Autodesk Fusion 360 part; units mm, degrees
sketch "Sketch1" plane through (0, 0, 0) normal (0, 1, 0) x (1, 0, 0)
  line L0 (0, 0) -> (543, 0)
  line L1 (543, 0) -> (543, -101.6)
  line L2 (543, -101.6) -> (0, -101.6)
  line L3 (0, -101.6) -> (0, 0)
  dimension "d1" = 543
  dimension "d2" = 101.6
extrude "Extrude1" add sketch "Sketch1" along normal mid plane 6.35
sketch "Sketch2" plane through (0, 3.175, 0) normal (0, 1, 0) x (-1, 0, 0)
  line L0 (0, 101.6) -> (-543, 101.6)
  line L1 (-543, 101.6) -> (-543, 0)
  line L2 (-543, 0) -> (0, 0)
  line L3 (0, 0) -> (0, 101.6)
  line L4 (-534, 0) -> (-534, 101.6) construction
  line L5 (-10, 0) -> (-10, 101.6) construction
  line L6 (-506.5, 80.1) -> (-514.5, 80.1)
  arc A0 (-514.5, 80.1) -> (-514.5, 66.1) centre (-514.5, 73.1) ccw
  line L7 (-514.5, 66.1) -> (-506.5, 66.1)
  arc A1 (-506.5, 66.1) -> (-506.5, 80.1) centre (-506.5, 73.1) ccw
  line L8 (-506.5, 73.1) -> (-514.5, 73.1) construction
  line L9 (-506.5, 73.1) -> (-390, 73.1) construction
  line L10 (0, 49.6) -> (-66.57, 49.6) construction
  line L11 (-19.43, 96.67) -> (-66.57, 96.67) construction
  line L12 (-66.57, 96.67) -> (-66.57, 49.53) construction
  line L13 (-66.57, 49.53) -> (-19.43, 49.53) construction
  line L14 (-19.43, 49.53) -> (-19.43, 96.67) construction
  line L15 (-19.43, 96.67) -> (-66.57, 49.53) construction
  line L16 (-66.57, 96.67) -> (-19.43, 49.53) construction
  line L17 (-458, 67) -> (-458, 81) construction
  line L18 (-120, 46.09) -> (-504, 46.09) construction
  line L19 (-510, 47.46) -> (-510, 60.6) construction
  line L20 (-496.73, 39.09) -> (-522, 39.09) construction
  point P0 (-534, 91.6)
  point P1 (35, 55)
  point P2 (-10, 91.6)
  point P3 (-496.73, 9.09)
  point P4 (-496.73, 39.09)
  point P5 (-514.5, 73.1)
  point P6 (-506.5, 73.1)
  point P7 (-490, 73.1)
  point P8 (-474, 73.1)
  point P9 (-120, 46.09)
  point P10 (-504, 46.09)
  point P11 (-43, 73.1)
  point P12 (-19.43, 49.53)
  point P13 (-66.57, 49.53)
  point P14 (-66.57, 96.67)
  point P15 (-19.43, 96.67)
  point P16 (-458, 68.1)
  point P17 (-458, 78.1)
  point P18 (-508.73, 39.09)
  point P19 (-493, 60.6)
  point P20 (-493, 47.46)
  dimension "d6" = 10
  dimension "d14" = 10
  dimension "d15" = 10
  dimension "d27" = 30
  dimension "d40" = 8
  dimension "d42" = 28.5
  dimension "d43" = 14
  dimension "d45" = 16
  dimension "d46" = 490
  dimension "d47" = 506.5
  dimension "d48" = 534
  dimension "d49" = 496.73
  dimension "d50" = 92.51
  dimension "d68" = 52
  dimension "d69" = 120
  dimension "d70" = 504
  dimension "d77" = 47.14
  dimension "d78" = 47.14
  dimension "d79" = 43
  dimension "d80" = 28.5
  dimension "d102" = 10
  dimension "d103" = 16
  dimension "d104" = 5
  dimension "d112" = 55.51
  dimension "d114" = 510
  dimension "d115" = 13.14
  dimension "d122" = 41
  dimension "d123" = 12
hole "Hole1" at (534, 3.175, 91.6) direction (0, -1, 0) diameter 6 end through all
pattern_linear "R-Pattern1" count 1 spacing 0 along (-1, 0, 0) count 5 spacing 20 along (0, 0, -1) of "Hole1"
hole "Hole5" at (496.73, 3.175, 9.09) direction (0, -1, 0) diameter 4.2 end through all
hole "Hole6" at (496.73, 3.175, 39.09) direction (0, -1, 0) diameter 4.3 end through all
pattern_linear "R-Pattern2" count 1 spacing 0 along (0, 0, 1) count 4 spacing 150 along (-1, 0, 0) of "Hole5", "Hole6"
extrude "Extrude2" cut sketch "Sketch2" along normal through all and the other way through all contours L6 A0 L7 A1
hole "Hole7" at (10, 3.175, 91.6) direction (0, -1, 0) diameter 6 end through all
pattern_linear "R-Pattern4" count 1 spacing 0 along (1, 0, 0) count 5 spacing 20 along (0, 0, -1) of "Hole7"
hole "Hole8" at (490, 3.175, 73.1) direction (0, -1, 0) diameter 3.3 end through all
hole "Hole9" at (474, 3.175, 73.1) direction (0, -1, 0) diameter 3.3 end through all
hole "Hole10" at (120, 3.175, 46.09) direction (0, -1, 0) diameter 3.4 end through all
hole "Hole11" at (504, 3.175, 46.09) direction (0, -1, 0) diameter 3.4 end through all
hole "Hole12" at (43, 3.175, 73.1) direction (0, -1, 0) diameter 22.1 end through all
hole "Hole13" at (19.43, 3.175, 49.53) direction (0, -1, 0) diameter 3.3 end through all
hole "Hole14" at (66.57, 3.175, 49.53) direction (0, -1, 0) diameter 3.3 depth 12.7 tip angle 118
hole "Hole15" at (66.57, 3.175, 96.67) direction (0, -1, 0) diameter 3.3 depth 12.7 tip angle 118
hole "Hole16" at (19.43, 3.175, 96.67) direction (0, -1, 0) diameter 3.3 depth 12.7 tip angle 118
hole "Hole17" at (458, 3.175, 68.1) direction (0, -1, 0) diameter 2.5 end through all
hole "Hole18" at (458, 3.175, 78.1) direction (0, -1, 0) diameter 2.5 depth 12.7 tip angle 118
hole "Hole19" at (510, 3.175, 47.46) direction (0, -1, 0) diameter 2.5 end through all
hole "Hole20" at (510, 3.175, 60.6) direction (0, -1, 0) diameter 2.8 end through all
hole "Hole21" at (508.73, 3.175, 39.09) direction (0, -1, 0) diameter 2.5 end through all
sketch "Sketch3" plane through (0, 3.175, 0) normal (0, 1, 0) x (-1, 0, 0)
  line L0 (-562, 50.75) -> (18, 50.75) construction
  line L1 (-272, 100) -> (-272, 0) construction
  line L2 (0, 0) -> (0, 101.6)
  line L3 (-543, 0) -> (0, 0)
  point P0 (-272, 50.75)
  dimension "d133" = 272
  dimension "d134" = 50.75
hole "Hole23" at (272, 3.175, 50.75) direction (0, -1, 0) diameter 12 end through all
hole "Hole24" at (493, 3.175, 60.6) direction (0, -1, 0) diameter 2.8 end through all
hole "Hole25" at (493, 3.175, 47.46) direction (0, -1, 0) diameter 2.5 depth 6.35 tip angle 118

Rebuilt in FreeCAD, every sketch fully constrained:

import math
import FreeCAD as App
import Part
import Sketcher

V = App.Vector

doc = App.newDocument("Part")
body = doc.addObject("PartDesign::Body", "Body")

sketch1 = body.newObject("Sketcher::SketchObject", "Sketch")
sketch1.AttachmentSupport = (doc.getObject("XZ_Plane"), [""])
sketch1.MapMode = "FlatFace"
sketch1.addGeometry(Part.LineSegment(V(543, 0, 0), V(0, 0, 0)), False)
sketch1.addGeometry(Part.LineSegment(V(0, 0, 0), V(0, 102, 0)), False)
sketch1.addGeometry(Part.LineSegment(V(0, 102, 0), V(543, 102, 0)), False)
sketch1.addGeometry(Part.LineSegment(V(543, 102, 0), V(543, 0, 0)), False)
sketch1.addConstraint(Sketcher.Constraint("Coincident", 0, 2, 1, 1))
sketch1.addConstraint(Sketcher.Constraint("Coincident", 1, 2, 2, 1))
sketch1.addConstraint(Sketcher.Constraint("Coincident", 2, 2, 3, 1))
sketch1.addConstraint(Sketcher.Constraint("Coincident", 3, 2, 0, 1))
sketch1.addConstraint(Sketcher.Constraint("Horizontal", 0))
sketch1.addConstraint(Sketcher.Constraint("Vertical", 1))
sketch1.addConstraint(Sketcher.Constraint("Horizontal", 2))
sketch1.addConstraint(Sketcher.Constraint("Vertical", 3))
sketch1.addConstraint(Sketcher.Constraint("Coincident", 0, 2, -1, 1))
sketch1.addConstraint(Sketcher.Constraint("DistanceX", 0, 2, 0, 1, 543.0))
sketch1.addConstraint(Sketcher.Constraint("DistanceY", 1, 1, 1, 2, 101.6))
pad1 = body.newObject("PartDesign::Pad", "Pad")
pad1.Profile = sketch1
pad1.Length = 6.35
pad1.Midplane = True

sketch2 = body.newObject("Sketcher::SketchObject", "Sketch001")
sketch2.AttachmentSupport = (doc.getObject("XZ_Plane"), [""])
sketch2.MapMode = "FlatFace"
sketch2.AttachmentOffset = App.Placement(V(0, 0, -3.175), App.Rotation())
sketch2.addGeometry(Part.Circle(V(534, 91.6, 0), V(0, 0, 1), 3), False)
sketch2.addConstraint(Sketcher.Constraint("Diameter", 0, 6.0))
sketch2.addConstraint(Sketcher.Constraint("DistanceX", -1, 1, 0, 3, 534.0))
sketch2.addConstraint(Sketcher.Constraint("DistanceY", -1, 1, 0, 3, 91.6))
doc.recompute()
hole = body.newObject("PartDesign::Hole", "Hole")
hole.Profile = sketch2
hole.ThreadType = "None"
hole.Diameter = 6
hole.DepthType = "ThroughAll"
hole.Reversed = True
doc.recompute()

linearpattern = body.newObject("PartDesign::LinearPattern", "LinearPattern")
linearpattern.Originals = [hole]
linearpattern.Direction = (doc.getObject("Z_Axis"), [""])
linearpattern.Mode = "offset"
linearpattern.Offset = 20
linearpattern.Occurrences = 5
linearpattern.Reversed = True
body.Tip = linearpattern

sketch3 = body.newObject("Sketcher::SketchObject", "Sketch002")
sketch3.AttachmentSupport = (doc.getObject("XZ_Plane"), [""])
sketch3.MapMode = "FlatFace"
sketch3.AttachmentOffset = App.Placement(V(0, 0, -3.175), App.Rotation())
sketch3.addGeometry(Part.Circle(V(496.7, 9.1, 0), V(0, 0, 1), 2.1), False)
sketch3.addConstraint(Sketcher.Constraint("Diameter", 0, 4.2))
sketch3.addConstraint(Sketcher.Constraint("DistanceX", -1, 1, 0, 3, 496.73))
sketch3.addConstraint(Sketcher.Constraint("DistanceY", -1, 1, 0, 3, 9.09))
doc.recompute()
hole2 = body.newObject("PartDesign::Hole", "Hole001")
hole2.Profile = sketch3
hole2.ThreadType = "None"
hole2.Diameter = 4.2
hole2.DepthType = "ThroughAll"
hole2.Reversed = True

sketch4 = body.newObject("Sketcher::SketchObject", "Sketch003")
sketch4.AttachmentSupport = (doc.getObject("XZ_Plane"), [""])
sketch4.MapMode = "FlatFace"
sketch4.AttachmentOffset = App.Placement(V(0, 0, -3.175), App.Rotation())
sketch4.addGeometry(Part.Circle(V(496.7, 39.1, 0), V(0, 0, 1), 2.1), False)
sketch4.addConstraint(Sketcher.Constraint("Diameter", 0, 4.3))
sketch4.addConstraint(Sketcher.Constraint("DistanceX", -1, 1, 0, 3, 496.73))
sketch4.addConstraint(Sketcher.Constraint("DistanceY", -1, 1, 0, 3, 39.09))
doc.recompute()
hole3 = body.newObject("PartDesign::Hole", "Hole002")
hole3.Profile = sketch4
hole3.ThreadType = "None"
hole3.Diameter = 4.3
hole3.DepthType = "ThroughAll"
hole3.Reversed = True
doc.recompute()

linearpattern2 = body.newObject("PartDesign::LinearPattern", "LinearPattern001")
linearpattern2.Originals = [hole2, hole3]
linearpattern2.Direction = (doc.getObject("X_Axis"), [""])
linearpattern2.Mode = "offset"
linearpattern2.Offset = 150
linearpattern2.Occurrences = 4
linearpattern2.Reversed = True
body.Tip = linearpattern2

sketch5 = body.newObject("Sketcher::SketchObject", "Sketch004")
sketch5.AttachmentSupport = (doc.getObject("XZ_Plane"), [""])
sketch5.MapMode = "FlatFace"
sketch5.AttachmentOffset = App.Placement(V(0, 0, -3.175), App.Rotation())
sketch5.addGeometry(Part.ArcOfCircle(Part.Circle(V(506, 73, 0), V(0, 0, 1), 7), math.radians(90), math.radians(270)), False)
sketch5.addGeometry(Part.LineSegment(V(506, 80, 0), V(514, 80, 0)), False)
sketch5.addGeometry(Part.ArcOfCircle(Part.Circle(V(514, 73, 0), V(0, 0, 1), 7), math.radians(-90), math.radians(90)), False)
sketch5.addGeometry(Part.LineSegment(V(514, 66, 0), V(506, 66, 0)), False)
sketch5.addConstraint(Sketcher.Constraint("Tangent", 0, 1, 1, 1))
sketch5.addConstraint(Sketcher.Constraint("Tangent", 1, 2, 2, 2))
sketch5.addConstraint(Sketcher.Constraint("Tangent", 2, 1, 3, 1))
sketch5.addConstraint(Sketcher.Constraint("Tangent", 3, 2, 0, 2))
sketch5.addConstraint(Sketcher.Constraint("Horizontal", 1))
sketch5.addConstraint(Sketcher.Constraint("Horizontal", 3))
sketch5.addConstraint(Sketcher.Constraint("Radius", 0, 7.0))
sketch5.addConstraint(Sketcher.Constraint("DistanceX", 1, 1, 1, 2, 8.0))
sketch5.addConstraint(Sketcher.Constraint("DistanceX", -1, 1, 0, 3, 506.5))
sketch5.addConstraint(Sketcher.Constraint("DistanceY", -1, 1, 0, 3, 73.1))
pocket1 = body.newObject("PartDesign::Pocket", "Pocket")
pocket1.Profile = sketch5
pocket1.Type = "ThroughAll"
pocket1.Midplane = True

sketch6 = body.newObject("Sketcher::SketchObject", "Sketch005")
sketch6.AttachmentSupport = (doc.getObject("XZ_Plane"), [""])
sketch6.MapMode = "FlatFace"
sketch6.AttachmentOffset = App.Placement(V(0, 0, -3.175), App.Rotation())
sketch6.addGeometry(Part.Circle(V(10, 91.6, 0), V(0, 0, 1), 3), False)
sketch6.addConstraint(Sketcher.Constraint("Diameter", 0, 6.0))
sketch6.addConstraint(Sketcher.Constraint("DistanceX", -1, 1, 0, 3, 10.0))
sketch6.addConstraint(Sketcher.Constraint("DistanceY", -1, 1, 0, 3, 91.6))
doc.recompute()
hole4 = body.newObject("PartDesign::Hole", "Hole003")
hole4.Profile = sketch6
hole4.ThreadType = "None"
hole4.Diameter = 6
hole4.DepthType = "ThroughAll"
hole4.Reversed = True
doc.recompute()

linearpattern3 = body.newObject("PartDesign::LinearPattern", "LinearPattern002")
linearpattern3.Originals = [hole4]
linearpattern3.Direction = (doc.getObject("Z_Axis"), [""])
linearpattern3.Mode = "offset"
linearpattern3.Offset = 20
linearpattern3.Occurrences = 5
linearpattern3.Reversed = True
body.Tip = linearpattern3

sketch7 = body.newObject("Sketcher::SketchObject", "Sketch006")
sketch7.AttachmentSupport = (doc.getObject("XZ_Plane"), [""])
sketch7.MapMode = "FlatFace"
sketch7.AttachmentOffset = App.Placement(V(0, 0, -3.175), App.Rotation())
sketch7.addGeometry(Part.Circle(V(490, 73.1, 0), V(0, 0, 1), 1.6), False)
sketch7.addConstraint(Sketcher.Constraint("Diameter", 0, 3.3))
sketch7.addConstraint(Sketcher.Constraint("DistanceX", -1, 1, 0, 3, 490.0))
sketch7.addConstraint(Sketcher.Constraint("DistanceY", -1, 1, 0, 3, 73.1))
doc.recompute()
hole5 = body.newObject("PartDesign::Hole", "Hole004")
hole5.Profile = sketch7
hole5.ThreadType = "None"
hole5.Diameter = 3.3
hole5.DepthType = "ThroughAll"
hole5.Reversed = True

sketch8 = body.newObject("Sketcher::SketchObject", "Sketch007")
sketch8.AttachmentSupport = (doc.getObject("XZ_Plane"), [""])
sketch8.MapMode = "FlatFace"
sketch8.AttachmentOffset = App.Placement(V(0, 0, -3.175), App.Rotation())
sketch8.addGeometry(Part.Circle(V(474, 73.1, 0), V(0, 0, 1), 1.6), False)
sketch8.addConstraint(Sketcher.Constraint("Diameter", 0, 3.3))
sketch8.addConstraint(Sketcher.Constraint("DistanceX", -1, 1, 0, 3, 474.0))
sketch8.addConstraint(Sketcher.Constraint("DistanceY", -1, 1, 0, 3, 73.1))
doc.recompute()
hole6 = body.newObject("PartDesign::Hole", "Hole005")
hole6.Profile = sketch8
hole6.ThreadType = "None"
hole6.Diameter = 3.3
hole6.DepthType = "ThroughAll"
hole6.Reversed = True

sketch9 = body.newObject("Sketcher::SketchObject", "Sketch008")
sketch9.AttachmentSupport = (doc.getObject("XZ_Plane"), [""])
sketch9.MapMode = "FlatFace"
sketch9.AttachmentOffset = App.Placement(V(0, 0, -3.175), App.Rotation())
sketch9.addGeometry(Part.Circle(V(120, 46.1, 0), V(0, 0, 1), 1.7), False)
sketch9.addConstraint(Sketcher.Constraint("Diameter", 0, 3.4))
sketch9.addConstraint(Sketcher.Constraint("DistanceX", -1, 1, 0, 3, 120.0))
sketch9.addConstraint(Sketcher.Constraint("DistanceY", -1, 1, 0, 3, 46.09))
doc.recompute()
hole7 = body.newObject("PartDesign::Hole", "Hole006")
hole7.Profile = sketch9
hole7.ThreadType = "None"
hole7.Diameter = 3.4
hole7.DepthType = "ThroughAll"
hole7.Reversed = True

sketch10 = body.newObject("Sketcher::SketchObject", "Sketch009")
sketch10.AttachmentSupport = (doc.getObject("XZ_Plane"), [""])
sketch10.MapMode = "FlatFace"
sketch10.AttachmentOffset = App.Placement(V(0, 0, -3.175), App.Rotation())
sketch10.addGeometry(Part.Circle(V(504, 46.1, 0), V(0, 0, 1), 1.7), False)
sketch10.addConstraint(Sketcher.Constraint("Diameter", 0, 3.4))
sketch10.addConstraint(Sketcher.Constraint("DistanceX", -1, 1, 0, 3, 504.0))
sketch10.addConstraint(Sketcher.Constraint("DistanceY", -1, 1, 0, 3, 46.09))
doc.recompute()
hole8 = body.newObject("PartDesign::Hole", "Hole007")
hole8.Profile = sketch10
hole8.ThreadType = "None"
hole8.Diameter = 3.4
hole8.DepthType = "ThroughAll"
hole8.Reversed = True

sketch11 = body.newObject("Sketcher::SketchObject", "Sketch010")
sketch11.AttachmentSupport = (doc.getObject("XZ_Plane"), [""])
sketch11.MapMode = "FlatFace"
sketch11.AttachmentOffset = App.Placement(V(0, 0, -3.175), App.Rotation())
sketch11.addGeometry(Part.Circle(V(43, 73, 0), V(0, 0, 1), 11), False)
sketch11.addConstraint(Sketcher.Constraint("Diameter", 0, 22.1))
sketch11.addConstraint(Sketcher.Constraint("DistanceX", -1, 1, 0, 3, 43.0))
sketch11.addConstraint(Sketcher.Constraint("DistanceY", -1, 1, 0, 3, 73.1))
doc.recompute()
hole9 = body.newObject("PartDesign::Hole", "Hole008")
hole9.Profile = sketch11
hole9.ThreadType = "None"
hole9.Diameter = 22.1
hole9.DepthType = "ThroughAll"
hole9.Reversed = True

sketch12 = body.newObject("Sketcher::SketchObject", "Sketch011")
sketch12.AttachmentSupport = (doc.getObject("XZ_Plane"), [""])
sketch12.MapMode = "FlatFace"
sketch12.AttachmentOffset = App.Placement(V(0, 0, -3.175), App.Rotation())
sketch12.addGeometry(Part.Circle(V(19.4, 49.5, 0), V(0, 0, 1), 1.6), False)
sketch12.addConstraint(Sketcher.Constraint("Diameter", 0, 3.3))
sketch12.addConstraint(Sketcher.Constraint("DistanceX", -1, 1, 0, 3, 19.43))
sketch12.addConstraint(Sketcher.Constraint("DistanceY", -1, 1, 0, 3, 49.53))
doc.recompute()
hole10 = body.newObject("PartDesign::Hole", "Hole009")
hole10.Profile = sketch12
hole10.ThreadType = "None"
hole10.Diameter = 3.3
hole10.DepthType = "ThroughAll"
hole10.Reversed = True

sketch13 = body.newObject("Sketcher::SketchObject", "Sketch012")
sketch13.AttachmentSupport = (doc.getObject("XZ_Plane"), [""])
sketch13.MapMode = "FlatFace"
sketch13.AttachmentOffset = App.Placement(V(0, 0, -3.175), App.Rotation())
sketch13.addGeometry(Part.Circle(V(66.6, 49.5, 0), V(0, 0, 1), 1.6), False)
sketch13.addConstraint(Sketcher.Constraint("Diameter", 0, 3.3))
sketch13.addConstraint(Sketcher.Constraint("DistanceX", -1, 1, 0, 3, 66.57))
sketch13.addConstraint(Sketcher.Constraint("DistanceY", -1, 1, 0, 3, 49.53))
doc.recompute()
hole11 = body.newObject("PartDesign::Hole", "Hole010")
hole11.Profile = sketch13
hole11.ThreadType = "None"
hole11.Diameter = 3.3
hole11.DepthType = "Dimension"
hole11.Depth = 12.7
hole11.DrillPoint = "Angled"
hole11.DrillPointAngle = 118
hole11.Reversed = True

sketch14 = body.newObject("Sketcher::SketchObject", "Sketch013")
sketch14.AttachmentSupport = (doc.getObject("XZ_Plane"), [""])
sketch14.MapMode = "FlatFace"
sketch14.AttachmentOffset = App.Placement(V(0, 0, -3.175), App.Rotation())
sketch14.addGeometry(Part.Circle(V(66.6, 96.7, 0), V(0, 0, 1), 1.6), False)
sketch14.addConstraint(Sketcher.Constraint("Diameter", 0, 3.3))
sketch14.addConstraint(Sketcher.Constraint("DistanceX", -1, 1, 0, 3, 66.57))
sketch14.addConstraint(Sketcher.Constraint("DistanceY", -1, 1, 0, 3, 96.67))
doc.recompute()
hole12 = body.newObject("PartDesign::Hole", "Hole011")
hole12.Profile = sketch14
hole12.ThreadType = "None"
hole12.Diameter = 3.3
hole12.DepthType = "Dimension"
hole12.Depth = 12.7
hole12.DrillPoint = "Angled"
hole12.DrillPointAngle = 118
hole12.Reversed = True

sketch15 = body.newObject("Sketcher::SketchObject", "Sketch014")
sketch15.AttachmentSupport = (doc.getObject("XZ_Plane"), [""])
sketch15.MapMode = "FlatFace"
sketch15.AttachmentOffset = App.Placement(V(0, 0, -3.175), App.Rotation())
sketch15.addGeometry(Part.Circle(V(19.4, 96.7, 0), V(0, 0, 1), 1.6), False)
sketch15.addConstraint(Sketcher.Constraint("Diameter", 0, 3.3))
sketch15.addConstraint(Sketcher.Constraint("DistanceX", -1, 1, 0, 3, 19.43))
sketch15.addConstraint(Sketcher.Constraint("DistanceY", -1, 1, 0, 3, 96.67))
doc.recompute()
hole13 = body.newObject("PartDesign::Hole", "Hole012")
hole13.Profile = sketch15
hole13.ThreadType = "None"
hole13.Diameter = 3.3
hole13.DepthType = "Dimension"
hole13.Depth = 12.7
hole13.DrillPoint = "Angled"
hole13.DrillPointAngle = 118
hole13.Reversed = True

sketch16 = body.newObject("Sketcher::SketchObject", "Sketch015")
sketch16.AttachmentSupport = (doc.getObject("XZ_Plane"), [""])
sketch16.MapMode = "FlatFace"
sketch16.AttachmentOffset = App.Placement(V(0, 0, -3.175), App.Rotation())
sketch16.addGeometry(Part.Circle(V(458, 68.1, 0), V(0, 0, 1), 1.2), False)
sketch16.addConstraint(Sketcher.Constraint("Diameter", 0, 2.5))
sketch16.addConstraint(Sketcher.Constraint("DistanceX", -1, 1, 0, 3, 458.0))
sketch16.addConstraint(Sketcher.Constraint("DistanceY", -1, 1, 0, 3, 68.1))
doc.recompute()
hole14 = body.newObject("PartDesign::Hole", "Hole013")
hole14.Profile = sketch16
hole14.ThreadType = "None"
hole14.Diameter = 2.5
hole14.DepthType = "ThroughAll"
hole14.Reversed = True

sketch17 = body.newObject("Sketcher::SketchObject", "Sketch016")
sketch17.AttachmentSupport = (doc.getObject("XZ_Plane"), [""])
sketch17.MapMode = "FlatFace"
sketch17.AttachmentOffset = App.Placement(V(0, 0, -3.175), App.Rotation())
sketch17.addGeometry(Part.Circle(V(458, 78.1, 0), V(0, 0, 1), 1.2), False)
sketch17.addConstraint(Sketcher.Constraint("Diameter", 0, 2.5))
sketch17.addConstraint(Sketcher.Constraint("DistanceX", -1, 1, 0, 3, 458.0))
sketch17.addConstraint(Sketcher.Constraint("DistanceY", -1, 1, 0, 3, 78.1))
doc.recompute()
hole15 = body.newObject("PartDesign::Hole", "Hole014")
hole15.Profile = sketch17
hole15.ThreadType = "None"
hole15.Diameter = 2.5
hole15.DepthType = "Dimension"
hole15.Depth = 12.7
hole15.DrillPoint = "Angled"
hole15.DrillPointAngle = 118
hole15.Reversed = True

sketch18 = body.newObject("Sketcher::SketchObject", "Sketch017")
sketch18.AttachmentSupport = (doc.getObject("XZ_Plane"), [""])
sketch18.MapMode = "FlatFace"
sketch18.AttachmentOffset = App.Placement(V(0, 0, -3.175), App.Rotation())
sketch18.addGeometry(Part.Circle(V(510, 47.5, 0), V(0, 0, 1), 1.2), False)
sketch18.addConstraint(Sketcher.Constraint("Diameter", 0, 2.5))
sketch18.addConstraint(Sketcher.Constraint("DistanceX", -1, 1, 0, 3, 510.0))
sketch18.addConstraint(Sketcher.Constraint("DistanceY", -1, 1, 0, 3, 47.46))
doc.recompute()
hole16 = body.newObject("PartDesign::Hole", "Hole015")
hole16.Profile = sketch18
hole16.ThreadType = "None"
hole16.Diameter = 2.5
hole16.DepthType = "ThroughAll"
hole16.Reversed = True

sketch19 = body.newObject("Sketcher::SketchObject", "Sketch018")
sketch19.AttachmentSupport = (doc.getObject("XZ_Plane"), [""])
sketch19.MapMode = "FlatFace"
sketch19.AttachmentOffset = App.Placement(V(0, 0, -3.175), App.Rotation())
sketch19.addGeometry(Part.Circle(V(510, 60.6, 0), V(0, 0, 1), 1.4), False)
sketch19.addConstraint(Sketcher.Constraint("Diameter", 0, 2.8))
sketch19.addConstraint(Sketcher.Constraint("DistanceX", -1, 1, 0, 3, 510.0))
sketch19.addConstraint(Sketcher.Constraint("DistanceY", -1, 1, 0, 3, 60.6))
doc.recompute()
hole17 = body.newObject("PartDesign::Hole", "Hole016")
hole17.Profile = sketch19
hole17.ThreadType = "None"
hole17.Diameter = 2.8
hole17.DepthType = "ThroughAll"
hole17.Reversed = True

sketch20 = body.newObject("Sketcher::SketchObject", "Sketch019")
sketch20.AttachmentSupport = (doc.getObject("XZ_Plane"), [""])
sketch20.MapMode = "FlatFace"
sketch20.AttachmentOffset = App.Placement(V(0, 0, -3.175), App.Rotation())
sketch20.addGeometry(Part.Circle(V(508.7, 39.1, 0), V(0, 0, 1), 1.2), False)
sketch20.addConstraint(Sketcher.Constraint("Diameter", 0, 2.5))
sketch20.addConstraint(Sketcher.Constraint("DistanceX", -1, 1, 0, 3, 508.73))
sketch20.addConstraint(Sketcher.Constraint("DistanceY", -1, 1, 0, 3, 39.09))
doc.recompute()
hole18 = body.newObject("PartDesign::Hole", "Hole017")
hole18.Profile = sketch20
hole18.ThreadType = "None"
hole18.Diameter = 2.5
hole18.DepthType = "ThroughAll"
hole18.Reversed = True

sketch21 = body.newObject("Sketcher::SketchObject", "Sketch020")
sketch21.AttachmentSupport = (doc.getObject("XZ_Plane"), [""])
sketch21.MapMode = "FlatFace"
sketch21.AttachmentOffset = App.Placement(V(0, 0, -3.175), App.Rotation())
sketch21.addGeometry(Part.Circle(V(272, 51, 0), V(0, 0, 1), 6), False)
sketch21.addConstraint(Sketcher.Constraint("Diameter", 0, 12.0))
sketch21.addConstraint(Sketcher.Constraint("DistanceX", -1, 1, 0, 3, 272.0))
sketch21.addConstraint(Sketcher.Constraint("DistanceY", -1, 1, 0, 3, 50.75))
doc.recompute()
hole19 = body.newObject("PartDesign::Hole", "Hole018")
hole19.Profile = sketch21
hole19.ThreadType = "None"
hole19.Diameter = 12
hole19.DepthType = "ThroughAll"
hole19.Reversed = True

sketch22 = body.newObject("Sketcher::SketchObject", "Sketch021")
sketch22.AttachmentSupport = (doc.getObject("XZ_Plane"), [""])
sketch22.MapMode = "FlatFace"
sketch22.AttachmentOffset = App.Placement(V(0, 0, -3.175), App.Rotation())
sketch22.addGeometry(Part.Circle(V(493, 60.6, 0), V(0, 0, 1), 1.4), False)
sketch22.addConstraint(Sketcher.Constraint("Diameter", 0, 2.8))
sketch22.addConstraint(Sketcher.Constraint("DistanceX", -1, 1, 0, 3, 493.0))
sketch22.addConstraint(Sketcher.Constraint("DistanceY", -1, 1, 0, 3, 60.6))
doc.recompute()
hole20 = body.newObject("PartDesign::Hole", "Hole019")
hole20.Profile = sketch22
hole20.ThreadType = "None"
hole20.Diameter = 2.8
hole20.DepthType = "ThroughAll"
hole20.Reversed = True

sketch23 = body.newObject("Sketcher::SketchObject", "Sketch022")
sketch23.AttachmentSupport = (doc.getObject("XZ_Plane"), [""])
sketch23.MapMode = "FlatFace"
sketch23.AttachmentOffset = App.Placement(V(0, 0, -3.175), App.Rotation())
sketch23.addGeometry(Part.Circle(V(493, 47.5, 0), V(0, 0, 1), 1.2), False)
sketch23.addConstraint(Sketcher.Constraint("Diameter", 0, 2.5))
sketch23.addConstraint(Sketcher.Constraint("DistanceX", -1, 1, 0, 3, 493.0))
sketch23.addConstraint(Sketcher.Constraint("DistanceY", -1, 1, 0, 3, 47.46))
doc.recompute()
hole21 = body.newObject("PartDesign::Hole", "Hole020")
hole21.Profile = sketch23
hole21.ThreadType = "None"
hole21.Diameter = 2.5
hole21.DepthType = "Dimension"
hole21.Depth = 6.35
hole21.DrillPoint = "Angled"
hole21.DrillPointAngle = 118
hole21.Reversed = True

doc.recompute()
